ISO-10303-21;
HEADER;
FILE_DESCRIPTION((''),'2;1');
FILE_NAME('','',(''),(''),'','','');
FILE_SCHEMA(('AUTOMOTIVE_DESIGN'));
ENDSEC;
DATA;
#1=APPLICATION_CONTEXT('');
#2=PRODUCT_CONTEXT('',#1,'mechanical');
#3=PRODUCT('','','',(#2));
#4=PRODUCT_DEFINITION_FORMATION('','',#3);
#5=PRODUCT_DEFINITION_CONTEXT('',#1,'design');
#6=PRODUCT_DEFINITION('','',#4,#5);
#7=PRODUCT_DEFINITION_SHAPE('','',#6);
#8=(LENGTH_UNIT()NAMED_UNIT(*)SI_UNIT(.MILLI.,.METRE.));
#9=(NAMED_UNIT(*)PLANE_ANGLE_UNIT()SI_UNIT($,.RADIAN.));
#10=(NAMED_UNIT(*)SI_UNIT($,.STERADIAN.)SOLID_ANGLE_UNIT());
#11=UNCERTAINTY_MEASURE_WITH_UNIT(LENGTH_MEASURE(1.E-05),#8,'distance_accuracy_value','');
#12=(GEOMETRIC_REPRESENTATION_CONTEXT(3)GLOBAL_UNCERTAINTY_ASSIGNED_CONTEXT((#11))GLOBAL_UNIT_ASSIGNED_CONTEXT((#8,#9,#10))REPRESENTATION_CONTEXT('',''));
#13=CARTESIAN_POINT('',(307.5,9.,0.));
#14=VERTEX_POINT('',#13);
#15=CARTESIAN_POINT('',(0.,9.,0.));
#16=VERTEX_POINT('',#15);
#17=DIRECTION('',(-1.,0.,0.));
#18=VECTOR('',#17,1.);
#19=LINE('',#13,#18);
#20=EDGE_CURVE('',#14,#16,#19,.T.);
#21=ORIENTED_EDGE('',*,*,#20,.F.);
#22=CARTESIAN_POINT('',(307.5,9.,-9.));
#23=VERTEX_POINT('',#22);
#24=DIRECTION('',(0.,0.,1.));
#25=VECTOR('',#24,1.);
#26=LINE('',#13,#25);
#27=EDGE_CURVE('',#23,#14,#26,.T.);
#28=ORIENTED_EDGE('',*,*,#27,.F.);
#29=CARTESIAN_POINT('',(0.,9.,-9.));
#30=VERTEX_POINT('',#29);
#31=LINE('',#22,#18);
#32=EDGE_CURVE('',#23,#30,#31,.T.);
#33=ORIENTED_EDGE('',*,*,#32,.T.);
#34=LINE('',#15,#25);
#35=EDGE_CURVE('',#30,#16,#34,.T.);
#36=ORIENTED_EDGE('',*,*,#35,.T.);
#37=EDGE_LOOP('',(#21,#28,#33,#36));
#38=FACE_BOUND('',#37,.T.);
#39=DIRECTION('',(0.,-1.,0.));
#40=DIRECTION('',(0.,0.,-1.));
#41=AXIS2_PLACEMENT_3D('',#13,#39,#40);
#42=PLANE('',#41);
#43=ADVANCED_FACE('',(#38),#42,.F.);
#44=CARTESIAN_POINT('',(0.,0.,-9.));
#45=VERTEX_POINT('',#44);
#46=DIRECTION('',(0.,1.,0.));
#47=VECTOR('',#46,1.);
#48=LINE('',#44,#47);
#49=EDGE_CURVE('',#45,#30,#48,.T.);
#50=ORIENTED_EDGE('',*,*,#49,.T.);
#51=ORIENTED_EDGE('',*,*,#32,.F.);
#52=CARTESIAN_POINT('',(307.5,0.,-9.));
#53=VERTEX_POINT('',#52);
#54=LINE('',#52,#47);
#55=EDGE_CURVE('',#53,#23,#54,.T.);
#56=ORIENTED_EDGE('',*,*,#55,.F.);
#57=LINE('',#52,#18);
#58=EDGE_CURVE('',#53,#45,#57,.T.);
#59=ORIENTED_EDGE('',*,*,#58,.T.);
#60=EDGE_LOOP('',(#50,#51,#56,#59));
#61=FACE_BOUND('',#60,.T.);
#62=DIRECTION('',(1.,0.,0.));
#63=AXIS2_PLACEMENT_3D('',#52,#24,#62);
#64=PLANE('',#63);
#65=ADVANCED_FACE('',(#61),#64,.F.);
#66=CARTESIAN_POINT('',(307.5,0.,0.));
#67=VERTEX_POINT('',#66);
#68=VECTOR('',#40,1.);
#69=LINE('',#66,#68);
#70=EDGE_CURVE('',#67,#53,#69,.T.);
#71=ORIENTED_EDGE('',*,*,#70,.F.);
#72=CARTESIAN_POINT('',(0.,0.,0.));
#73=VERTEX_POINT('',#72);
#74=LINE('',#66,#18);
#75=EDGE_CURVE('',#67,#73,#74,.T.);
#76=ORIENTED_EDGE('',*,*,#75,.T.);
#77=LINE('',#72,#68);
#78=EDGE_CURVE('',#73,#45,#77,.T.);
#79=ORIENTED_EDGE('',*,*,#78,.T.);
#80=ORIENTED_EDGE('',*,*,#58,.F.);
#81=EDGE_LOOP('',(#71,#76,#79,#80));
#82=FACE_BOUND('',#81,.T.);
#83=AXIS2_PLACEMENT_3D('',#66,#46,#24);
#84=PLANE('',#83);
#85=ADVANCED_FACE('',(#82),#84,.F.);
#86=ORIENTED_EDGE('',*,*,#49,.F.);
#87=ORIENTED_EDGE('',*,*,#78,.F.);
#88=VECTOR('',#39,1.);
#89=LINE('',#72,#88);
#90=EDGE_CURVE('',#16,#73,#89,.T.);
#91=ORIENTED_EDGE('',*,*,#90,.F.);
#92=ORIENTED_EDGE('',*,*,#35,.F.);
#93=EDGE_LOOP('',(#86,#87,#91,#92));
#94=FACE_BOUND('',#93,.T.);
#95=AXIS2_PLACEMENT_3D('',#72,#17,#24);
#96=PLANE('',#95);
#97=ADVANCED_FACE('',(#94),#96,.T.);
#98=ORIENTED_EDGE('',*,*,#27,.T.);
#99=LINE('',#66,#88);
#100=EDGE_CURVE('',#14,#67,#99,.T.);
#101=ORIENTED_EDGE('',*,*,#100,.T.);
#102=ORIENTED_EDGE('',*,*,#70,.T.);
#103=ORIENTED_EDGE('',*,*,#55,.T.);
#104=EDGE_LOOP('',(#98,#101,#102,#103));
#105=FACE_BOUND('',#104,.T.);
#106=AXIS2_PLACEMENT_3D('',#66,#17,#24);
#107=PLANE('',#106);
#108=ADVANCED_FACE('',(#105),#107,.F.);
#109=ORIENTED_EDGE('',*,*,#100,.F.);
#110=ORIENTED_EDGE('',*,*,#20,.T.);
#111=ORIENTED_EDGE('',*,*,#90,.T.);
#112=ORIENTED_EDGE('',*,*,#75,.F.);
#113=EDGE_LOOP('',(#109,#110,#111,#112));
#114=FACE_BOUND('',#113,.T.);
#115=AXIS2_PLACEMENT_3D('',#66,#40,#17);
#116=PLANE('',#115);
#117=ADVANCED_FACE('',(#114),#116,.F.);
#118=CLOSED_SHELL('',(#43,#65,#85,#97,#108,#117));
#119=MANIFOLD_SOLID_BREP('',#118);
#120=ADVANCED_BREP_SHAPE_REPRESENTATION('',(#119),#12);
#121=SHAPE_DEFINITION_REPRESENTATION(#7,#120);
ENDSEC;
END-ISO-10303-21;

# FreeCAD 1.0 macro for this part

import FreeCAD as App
import Part
import Sketcher

V = App.Vector
Q = App.Units.Quantity


def add_polygon(sketch, points):
    """Adds a closed chain of lines whose ends are joined by coincident constraints."""
    first, n = sketch.GeometryCount, len(points)
    for a, b in zip(points, points[1:] + points[:1]):
        sketch.addGeometry(Part.LineSegment(App.Vector(*a, 0), App.Vector(*b, 0)), False)
    for i in range(n):
        sketch.addConstraint(Sketcher.Constraint("Coincident", first + i, 2, first + (i + 1) % n, 1))

doc = App.newDocument("Part")
body = doc.addObject("PartDesign::Body", "Body")

sketch1 = body.newObject("Sketcher::SketchObject", "Sketch")
sketch1.AttachmentSupport = (doc.getObject("YZ_Plane"), [""])
sketch1.MapMode = "FlatFace"
add_polygon(sketch1, [(9, 0), (0, 0), (0, -9), (9, -9)])
sketch1.addConstraint([
    Sketcher.Constraint("Horizontal", 0),
    Sketcher.Constraint("Vertical", 1),
    Sketcher.Constraint("Horizontal", 2),
    Sketcher.Constraint("Vertical", 3),
    Sketcher.Constraint("Coincident", 0, 2, -1, 1),
    Sketcher.Constraint("Equal", 2, 1),
    Sketcher.Constraint("DistanceX", 0, 2, 0, 1, Q("9 mm")),
])
pad1 = body.newObject("PartDesign::Pad", "Pad")
pad1.Profile = sketch1
pad1.Length = 307.5

doc.recompute()
